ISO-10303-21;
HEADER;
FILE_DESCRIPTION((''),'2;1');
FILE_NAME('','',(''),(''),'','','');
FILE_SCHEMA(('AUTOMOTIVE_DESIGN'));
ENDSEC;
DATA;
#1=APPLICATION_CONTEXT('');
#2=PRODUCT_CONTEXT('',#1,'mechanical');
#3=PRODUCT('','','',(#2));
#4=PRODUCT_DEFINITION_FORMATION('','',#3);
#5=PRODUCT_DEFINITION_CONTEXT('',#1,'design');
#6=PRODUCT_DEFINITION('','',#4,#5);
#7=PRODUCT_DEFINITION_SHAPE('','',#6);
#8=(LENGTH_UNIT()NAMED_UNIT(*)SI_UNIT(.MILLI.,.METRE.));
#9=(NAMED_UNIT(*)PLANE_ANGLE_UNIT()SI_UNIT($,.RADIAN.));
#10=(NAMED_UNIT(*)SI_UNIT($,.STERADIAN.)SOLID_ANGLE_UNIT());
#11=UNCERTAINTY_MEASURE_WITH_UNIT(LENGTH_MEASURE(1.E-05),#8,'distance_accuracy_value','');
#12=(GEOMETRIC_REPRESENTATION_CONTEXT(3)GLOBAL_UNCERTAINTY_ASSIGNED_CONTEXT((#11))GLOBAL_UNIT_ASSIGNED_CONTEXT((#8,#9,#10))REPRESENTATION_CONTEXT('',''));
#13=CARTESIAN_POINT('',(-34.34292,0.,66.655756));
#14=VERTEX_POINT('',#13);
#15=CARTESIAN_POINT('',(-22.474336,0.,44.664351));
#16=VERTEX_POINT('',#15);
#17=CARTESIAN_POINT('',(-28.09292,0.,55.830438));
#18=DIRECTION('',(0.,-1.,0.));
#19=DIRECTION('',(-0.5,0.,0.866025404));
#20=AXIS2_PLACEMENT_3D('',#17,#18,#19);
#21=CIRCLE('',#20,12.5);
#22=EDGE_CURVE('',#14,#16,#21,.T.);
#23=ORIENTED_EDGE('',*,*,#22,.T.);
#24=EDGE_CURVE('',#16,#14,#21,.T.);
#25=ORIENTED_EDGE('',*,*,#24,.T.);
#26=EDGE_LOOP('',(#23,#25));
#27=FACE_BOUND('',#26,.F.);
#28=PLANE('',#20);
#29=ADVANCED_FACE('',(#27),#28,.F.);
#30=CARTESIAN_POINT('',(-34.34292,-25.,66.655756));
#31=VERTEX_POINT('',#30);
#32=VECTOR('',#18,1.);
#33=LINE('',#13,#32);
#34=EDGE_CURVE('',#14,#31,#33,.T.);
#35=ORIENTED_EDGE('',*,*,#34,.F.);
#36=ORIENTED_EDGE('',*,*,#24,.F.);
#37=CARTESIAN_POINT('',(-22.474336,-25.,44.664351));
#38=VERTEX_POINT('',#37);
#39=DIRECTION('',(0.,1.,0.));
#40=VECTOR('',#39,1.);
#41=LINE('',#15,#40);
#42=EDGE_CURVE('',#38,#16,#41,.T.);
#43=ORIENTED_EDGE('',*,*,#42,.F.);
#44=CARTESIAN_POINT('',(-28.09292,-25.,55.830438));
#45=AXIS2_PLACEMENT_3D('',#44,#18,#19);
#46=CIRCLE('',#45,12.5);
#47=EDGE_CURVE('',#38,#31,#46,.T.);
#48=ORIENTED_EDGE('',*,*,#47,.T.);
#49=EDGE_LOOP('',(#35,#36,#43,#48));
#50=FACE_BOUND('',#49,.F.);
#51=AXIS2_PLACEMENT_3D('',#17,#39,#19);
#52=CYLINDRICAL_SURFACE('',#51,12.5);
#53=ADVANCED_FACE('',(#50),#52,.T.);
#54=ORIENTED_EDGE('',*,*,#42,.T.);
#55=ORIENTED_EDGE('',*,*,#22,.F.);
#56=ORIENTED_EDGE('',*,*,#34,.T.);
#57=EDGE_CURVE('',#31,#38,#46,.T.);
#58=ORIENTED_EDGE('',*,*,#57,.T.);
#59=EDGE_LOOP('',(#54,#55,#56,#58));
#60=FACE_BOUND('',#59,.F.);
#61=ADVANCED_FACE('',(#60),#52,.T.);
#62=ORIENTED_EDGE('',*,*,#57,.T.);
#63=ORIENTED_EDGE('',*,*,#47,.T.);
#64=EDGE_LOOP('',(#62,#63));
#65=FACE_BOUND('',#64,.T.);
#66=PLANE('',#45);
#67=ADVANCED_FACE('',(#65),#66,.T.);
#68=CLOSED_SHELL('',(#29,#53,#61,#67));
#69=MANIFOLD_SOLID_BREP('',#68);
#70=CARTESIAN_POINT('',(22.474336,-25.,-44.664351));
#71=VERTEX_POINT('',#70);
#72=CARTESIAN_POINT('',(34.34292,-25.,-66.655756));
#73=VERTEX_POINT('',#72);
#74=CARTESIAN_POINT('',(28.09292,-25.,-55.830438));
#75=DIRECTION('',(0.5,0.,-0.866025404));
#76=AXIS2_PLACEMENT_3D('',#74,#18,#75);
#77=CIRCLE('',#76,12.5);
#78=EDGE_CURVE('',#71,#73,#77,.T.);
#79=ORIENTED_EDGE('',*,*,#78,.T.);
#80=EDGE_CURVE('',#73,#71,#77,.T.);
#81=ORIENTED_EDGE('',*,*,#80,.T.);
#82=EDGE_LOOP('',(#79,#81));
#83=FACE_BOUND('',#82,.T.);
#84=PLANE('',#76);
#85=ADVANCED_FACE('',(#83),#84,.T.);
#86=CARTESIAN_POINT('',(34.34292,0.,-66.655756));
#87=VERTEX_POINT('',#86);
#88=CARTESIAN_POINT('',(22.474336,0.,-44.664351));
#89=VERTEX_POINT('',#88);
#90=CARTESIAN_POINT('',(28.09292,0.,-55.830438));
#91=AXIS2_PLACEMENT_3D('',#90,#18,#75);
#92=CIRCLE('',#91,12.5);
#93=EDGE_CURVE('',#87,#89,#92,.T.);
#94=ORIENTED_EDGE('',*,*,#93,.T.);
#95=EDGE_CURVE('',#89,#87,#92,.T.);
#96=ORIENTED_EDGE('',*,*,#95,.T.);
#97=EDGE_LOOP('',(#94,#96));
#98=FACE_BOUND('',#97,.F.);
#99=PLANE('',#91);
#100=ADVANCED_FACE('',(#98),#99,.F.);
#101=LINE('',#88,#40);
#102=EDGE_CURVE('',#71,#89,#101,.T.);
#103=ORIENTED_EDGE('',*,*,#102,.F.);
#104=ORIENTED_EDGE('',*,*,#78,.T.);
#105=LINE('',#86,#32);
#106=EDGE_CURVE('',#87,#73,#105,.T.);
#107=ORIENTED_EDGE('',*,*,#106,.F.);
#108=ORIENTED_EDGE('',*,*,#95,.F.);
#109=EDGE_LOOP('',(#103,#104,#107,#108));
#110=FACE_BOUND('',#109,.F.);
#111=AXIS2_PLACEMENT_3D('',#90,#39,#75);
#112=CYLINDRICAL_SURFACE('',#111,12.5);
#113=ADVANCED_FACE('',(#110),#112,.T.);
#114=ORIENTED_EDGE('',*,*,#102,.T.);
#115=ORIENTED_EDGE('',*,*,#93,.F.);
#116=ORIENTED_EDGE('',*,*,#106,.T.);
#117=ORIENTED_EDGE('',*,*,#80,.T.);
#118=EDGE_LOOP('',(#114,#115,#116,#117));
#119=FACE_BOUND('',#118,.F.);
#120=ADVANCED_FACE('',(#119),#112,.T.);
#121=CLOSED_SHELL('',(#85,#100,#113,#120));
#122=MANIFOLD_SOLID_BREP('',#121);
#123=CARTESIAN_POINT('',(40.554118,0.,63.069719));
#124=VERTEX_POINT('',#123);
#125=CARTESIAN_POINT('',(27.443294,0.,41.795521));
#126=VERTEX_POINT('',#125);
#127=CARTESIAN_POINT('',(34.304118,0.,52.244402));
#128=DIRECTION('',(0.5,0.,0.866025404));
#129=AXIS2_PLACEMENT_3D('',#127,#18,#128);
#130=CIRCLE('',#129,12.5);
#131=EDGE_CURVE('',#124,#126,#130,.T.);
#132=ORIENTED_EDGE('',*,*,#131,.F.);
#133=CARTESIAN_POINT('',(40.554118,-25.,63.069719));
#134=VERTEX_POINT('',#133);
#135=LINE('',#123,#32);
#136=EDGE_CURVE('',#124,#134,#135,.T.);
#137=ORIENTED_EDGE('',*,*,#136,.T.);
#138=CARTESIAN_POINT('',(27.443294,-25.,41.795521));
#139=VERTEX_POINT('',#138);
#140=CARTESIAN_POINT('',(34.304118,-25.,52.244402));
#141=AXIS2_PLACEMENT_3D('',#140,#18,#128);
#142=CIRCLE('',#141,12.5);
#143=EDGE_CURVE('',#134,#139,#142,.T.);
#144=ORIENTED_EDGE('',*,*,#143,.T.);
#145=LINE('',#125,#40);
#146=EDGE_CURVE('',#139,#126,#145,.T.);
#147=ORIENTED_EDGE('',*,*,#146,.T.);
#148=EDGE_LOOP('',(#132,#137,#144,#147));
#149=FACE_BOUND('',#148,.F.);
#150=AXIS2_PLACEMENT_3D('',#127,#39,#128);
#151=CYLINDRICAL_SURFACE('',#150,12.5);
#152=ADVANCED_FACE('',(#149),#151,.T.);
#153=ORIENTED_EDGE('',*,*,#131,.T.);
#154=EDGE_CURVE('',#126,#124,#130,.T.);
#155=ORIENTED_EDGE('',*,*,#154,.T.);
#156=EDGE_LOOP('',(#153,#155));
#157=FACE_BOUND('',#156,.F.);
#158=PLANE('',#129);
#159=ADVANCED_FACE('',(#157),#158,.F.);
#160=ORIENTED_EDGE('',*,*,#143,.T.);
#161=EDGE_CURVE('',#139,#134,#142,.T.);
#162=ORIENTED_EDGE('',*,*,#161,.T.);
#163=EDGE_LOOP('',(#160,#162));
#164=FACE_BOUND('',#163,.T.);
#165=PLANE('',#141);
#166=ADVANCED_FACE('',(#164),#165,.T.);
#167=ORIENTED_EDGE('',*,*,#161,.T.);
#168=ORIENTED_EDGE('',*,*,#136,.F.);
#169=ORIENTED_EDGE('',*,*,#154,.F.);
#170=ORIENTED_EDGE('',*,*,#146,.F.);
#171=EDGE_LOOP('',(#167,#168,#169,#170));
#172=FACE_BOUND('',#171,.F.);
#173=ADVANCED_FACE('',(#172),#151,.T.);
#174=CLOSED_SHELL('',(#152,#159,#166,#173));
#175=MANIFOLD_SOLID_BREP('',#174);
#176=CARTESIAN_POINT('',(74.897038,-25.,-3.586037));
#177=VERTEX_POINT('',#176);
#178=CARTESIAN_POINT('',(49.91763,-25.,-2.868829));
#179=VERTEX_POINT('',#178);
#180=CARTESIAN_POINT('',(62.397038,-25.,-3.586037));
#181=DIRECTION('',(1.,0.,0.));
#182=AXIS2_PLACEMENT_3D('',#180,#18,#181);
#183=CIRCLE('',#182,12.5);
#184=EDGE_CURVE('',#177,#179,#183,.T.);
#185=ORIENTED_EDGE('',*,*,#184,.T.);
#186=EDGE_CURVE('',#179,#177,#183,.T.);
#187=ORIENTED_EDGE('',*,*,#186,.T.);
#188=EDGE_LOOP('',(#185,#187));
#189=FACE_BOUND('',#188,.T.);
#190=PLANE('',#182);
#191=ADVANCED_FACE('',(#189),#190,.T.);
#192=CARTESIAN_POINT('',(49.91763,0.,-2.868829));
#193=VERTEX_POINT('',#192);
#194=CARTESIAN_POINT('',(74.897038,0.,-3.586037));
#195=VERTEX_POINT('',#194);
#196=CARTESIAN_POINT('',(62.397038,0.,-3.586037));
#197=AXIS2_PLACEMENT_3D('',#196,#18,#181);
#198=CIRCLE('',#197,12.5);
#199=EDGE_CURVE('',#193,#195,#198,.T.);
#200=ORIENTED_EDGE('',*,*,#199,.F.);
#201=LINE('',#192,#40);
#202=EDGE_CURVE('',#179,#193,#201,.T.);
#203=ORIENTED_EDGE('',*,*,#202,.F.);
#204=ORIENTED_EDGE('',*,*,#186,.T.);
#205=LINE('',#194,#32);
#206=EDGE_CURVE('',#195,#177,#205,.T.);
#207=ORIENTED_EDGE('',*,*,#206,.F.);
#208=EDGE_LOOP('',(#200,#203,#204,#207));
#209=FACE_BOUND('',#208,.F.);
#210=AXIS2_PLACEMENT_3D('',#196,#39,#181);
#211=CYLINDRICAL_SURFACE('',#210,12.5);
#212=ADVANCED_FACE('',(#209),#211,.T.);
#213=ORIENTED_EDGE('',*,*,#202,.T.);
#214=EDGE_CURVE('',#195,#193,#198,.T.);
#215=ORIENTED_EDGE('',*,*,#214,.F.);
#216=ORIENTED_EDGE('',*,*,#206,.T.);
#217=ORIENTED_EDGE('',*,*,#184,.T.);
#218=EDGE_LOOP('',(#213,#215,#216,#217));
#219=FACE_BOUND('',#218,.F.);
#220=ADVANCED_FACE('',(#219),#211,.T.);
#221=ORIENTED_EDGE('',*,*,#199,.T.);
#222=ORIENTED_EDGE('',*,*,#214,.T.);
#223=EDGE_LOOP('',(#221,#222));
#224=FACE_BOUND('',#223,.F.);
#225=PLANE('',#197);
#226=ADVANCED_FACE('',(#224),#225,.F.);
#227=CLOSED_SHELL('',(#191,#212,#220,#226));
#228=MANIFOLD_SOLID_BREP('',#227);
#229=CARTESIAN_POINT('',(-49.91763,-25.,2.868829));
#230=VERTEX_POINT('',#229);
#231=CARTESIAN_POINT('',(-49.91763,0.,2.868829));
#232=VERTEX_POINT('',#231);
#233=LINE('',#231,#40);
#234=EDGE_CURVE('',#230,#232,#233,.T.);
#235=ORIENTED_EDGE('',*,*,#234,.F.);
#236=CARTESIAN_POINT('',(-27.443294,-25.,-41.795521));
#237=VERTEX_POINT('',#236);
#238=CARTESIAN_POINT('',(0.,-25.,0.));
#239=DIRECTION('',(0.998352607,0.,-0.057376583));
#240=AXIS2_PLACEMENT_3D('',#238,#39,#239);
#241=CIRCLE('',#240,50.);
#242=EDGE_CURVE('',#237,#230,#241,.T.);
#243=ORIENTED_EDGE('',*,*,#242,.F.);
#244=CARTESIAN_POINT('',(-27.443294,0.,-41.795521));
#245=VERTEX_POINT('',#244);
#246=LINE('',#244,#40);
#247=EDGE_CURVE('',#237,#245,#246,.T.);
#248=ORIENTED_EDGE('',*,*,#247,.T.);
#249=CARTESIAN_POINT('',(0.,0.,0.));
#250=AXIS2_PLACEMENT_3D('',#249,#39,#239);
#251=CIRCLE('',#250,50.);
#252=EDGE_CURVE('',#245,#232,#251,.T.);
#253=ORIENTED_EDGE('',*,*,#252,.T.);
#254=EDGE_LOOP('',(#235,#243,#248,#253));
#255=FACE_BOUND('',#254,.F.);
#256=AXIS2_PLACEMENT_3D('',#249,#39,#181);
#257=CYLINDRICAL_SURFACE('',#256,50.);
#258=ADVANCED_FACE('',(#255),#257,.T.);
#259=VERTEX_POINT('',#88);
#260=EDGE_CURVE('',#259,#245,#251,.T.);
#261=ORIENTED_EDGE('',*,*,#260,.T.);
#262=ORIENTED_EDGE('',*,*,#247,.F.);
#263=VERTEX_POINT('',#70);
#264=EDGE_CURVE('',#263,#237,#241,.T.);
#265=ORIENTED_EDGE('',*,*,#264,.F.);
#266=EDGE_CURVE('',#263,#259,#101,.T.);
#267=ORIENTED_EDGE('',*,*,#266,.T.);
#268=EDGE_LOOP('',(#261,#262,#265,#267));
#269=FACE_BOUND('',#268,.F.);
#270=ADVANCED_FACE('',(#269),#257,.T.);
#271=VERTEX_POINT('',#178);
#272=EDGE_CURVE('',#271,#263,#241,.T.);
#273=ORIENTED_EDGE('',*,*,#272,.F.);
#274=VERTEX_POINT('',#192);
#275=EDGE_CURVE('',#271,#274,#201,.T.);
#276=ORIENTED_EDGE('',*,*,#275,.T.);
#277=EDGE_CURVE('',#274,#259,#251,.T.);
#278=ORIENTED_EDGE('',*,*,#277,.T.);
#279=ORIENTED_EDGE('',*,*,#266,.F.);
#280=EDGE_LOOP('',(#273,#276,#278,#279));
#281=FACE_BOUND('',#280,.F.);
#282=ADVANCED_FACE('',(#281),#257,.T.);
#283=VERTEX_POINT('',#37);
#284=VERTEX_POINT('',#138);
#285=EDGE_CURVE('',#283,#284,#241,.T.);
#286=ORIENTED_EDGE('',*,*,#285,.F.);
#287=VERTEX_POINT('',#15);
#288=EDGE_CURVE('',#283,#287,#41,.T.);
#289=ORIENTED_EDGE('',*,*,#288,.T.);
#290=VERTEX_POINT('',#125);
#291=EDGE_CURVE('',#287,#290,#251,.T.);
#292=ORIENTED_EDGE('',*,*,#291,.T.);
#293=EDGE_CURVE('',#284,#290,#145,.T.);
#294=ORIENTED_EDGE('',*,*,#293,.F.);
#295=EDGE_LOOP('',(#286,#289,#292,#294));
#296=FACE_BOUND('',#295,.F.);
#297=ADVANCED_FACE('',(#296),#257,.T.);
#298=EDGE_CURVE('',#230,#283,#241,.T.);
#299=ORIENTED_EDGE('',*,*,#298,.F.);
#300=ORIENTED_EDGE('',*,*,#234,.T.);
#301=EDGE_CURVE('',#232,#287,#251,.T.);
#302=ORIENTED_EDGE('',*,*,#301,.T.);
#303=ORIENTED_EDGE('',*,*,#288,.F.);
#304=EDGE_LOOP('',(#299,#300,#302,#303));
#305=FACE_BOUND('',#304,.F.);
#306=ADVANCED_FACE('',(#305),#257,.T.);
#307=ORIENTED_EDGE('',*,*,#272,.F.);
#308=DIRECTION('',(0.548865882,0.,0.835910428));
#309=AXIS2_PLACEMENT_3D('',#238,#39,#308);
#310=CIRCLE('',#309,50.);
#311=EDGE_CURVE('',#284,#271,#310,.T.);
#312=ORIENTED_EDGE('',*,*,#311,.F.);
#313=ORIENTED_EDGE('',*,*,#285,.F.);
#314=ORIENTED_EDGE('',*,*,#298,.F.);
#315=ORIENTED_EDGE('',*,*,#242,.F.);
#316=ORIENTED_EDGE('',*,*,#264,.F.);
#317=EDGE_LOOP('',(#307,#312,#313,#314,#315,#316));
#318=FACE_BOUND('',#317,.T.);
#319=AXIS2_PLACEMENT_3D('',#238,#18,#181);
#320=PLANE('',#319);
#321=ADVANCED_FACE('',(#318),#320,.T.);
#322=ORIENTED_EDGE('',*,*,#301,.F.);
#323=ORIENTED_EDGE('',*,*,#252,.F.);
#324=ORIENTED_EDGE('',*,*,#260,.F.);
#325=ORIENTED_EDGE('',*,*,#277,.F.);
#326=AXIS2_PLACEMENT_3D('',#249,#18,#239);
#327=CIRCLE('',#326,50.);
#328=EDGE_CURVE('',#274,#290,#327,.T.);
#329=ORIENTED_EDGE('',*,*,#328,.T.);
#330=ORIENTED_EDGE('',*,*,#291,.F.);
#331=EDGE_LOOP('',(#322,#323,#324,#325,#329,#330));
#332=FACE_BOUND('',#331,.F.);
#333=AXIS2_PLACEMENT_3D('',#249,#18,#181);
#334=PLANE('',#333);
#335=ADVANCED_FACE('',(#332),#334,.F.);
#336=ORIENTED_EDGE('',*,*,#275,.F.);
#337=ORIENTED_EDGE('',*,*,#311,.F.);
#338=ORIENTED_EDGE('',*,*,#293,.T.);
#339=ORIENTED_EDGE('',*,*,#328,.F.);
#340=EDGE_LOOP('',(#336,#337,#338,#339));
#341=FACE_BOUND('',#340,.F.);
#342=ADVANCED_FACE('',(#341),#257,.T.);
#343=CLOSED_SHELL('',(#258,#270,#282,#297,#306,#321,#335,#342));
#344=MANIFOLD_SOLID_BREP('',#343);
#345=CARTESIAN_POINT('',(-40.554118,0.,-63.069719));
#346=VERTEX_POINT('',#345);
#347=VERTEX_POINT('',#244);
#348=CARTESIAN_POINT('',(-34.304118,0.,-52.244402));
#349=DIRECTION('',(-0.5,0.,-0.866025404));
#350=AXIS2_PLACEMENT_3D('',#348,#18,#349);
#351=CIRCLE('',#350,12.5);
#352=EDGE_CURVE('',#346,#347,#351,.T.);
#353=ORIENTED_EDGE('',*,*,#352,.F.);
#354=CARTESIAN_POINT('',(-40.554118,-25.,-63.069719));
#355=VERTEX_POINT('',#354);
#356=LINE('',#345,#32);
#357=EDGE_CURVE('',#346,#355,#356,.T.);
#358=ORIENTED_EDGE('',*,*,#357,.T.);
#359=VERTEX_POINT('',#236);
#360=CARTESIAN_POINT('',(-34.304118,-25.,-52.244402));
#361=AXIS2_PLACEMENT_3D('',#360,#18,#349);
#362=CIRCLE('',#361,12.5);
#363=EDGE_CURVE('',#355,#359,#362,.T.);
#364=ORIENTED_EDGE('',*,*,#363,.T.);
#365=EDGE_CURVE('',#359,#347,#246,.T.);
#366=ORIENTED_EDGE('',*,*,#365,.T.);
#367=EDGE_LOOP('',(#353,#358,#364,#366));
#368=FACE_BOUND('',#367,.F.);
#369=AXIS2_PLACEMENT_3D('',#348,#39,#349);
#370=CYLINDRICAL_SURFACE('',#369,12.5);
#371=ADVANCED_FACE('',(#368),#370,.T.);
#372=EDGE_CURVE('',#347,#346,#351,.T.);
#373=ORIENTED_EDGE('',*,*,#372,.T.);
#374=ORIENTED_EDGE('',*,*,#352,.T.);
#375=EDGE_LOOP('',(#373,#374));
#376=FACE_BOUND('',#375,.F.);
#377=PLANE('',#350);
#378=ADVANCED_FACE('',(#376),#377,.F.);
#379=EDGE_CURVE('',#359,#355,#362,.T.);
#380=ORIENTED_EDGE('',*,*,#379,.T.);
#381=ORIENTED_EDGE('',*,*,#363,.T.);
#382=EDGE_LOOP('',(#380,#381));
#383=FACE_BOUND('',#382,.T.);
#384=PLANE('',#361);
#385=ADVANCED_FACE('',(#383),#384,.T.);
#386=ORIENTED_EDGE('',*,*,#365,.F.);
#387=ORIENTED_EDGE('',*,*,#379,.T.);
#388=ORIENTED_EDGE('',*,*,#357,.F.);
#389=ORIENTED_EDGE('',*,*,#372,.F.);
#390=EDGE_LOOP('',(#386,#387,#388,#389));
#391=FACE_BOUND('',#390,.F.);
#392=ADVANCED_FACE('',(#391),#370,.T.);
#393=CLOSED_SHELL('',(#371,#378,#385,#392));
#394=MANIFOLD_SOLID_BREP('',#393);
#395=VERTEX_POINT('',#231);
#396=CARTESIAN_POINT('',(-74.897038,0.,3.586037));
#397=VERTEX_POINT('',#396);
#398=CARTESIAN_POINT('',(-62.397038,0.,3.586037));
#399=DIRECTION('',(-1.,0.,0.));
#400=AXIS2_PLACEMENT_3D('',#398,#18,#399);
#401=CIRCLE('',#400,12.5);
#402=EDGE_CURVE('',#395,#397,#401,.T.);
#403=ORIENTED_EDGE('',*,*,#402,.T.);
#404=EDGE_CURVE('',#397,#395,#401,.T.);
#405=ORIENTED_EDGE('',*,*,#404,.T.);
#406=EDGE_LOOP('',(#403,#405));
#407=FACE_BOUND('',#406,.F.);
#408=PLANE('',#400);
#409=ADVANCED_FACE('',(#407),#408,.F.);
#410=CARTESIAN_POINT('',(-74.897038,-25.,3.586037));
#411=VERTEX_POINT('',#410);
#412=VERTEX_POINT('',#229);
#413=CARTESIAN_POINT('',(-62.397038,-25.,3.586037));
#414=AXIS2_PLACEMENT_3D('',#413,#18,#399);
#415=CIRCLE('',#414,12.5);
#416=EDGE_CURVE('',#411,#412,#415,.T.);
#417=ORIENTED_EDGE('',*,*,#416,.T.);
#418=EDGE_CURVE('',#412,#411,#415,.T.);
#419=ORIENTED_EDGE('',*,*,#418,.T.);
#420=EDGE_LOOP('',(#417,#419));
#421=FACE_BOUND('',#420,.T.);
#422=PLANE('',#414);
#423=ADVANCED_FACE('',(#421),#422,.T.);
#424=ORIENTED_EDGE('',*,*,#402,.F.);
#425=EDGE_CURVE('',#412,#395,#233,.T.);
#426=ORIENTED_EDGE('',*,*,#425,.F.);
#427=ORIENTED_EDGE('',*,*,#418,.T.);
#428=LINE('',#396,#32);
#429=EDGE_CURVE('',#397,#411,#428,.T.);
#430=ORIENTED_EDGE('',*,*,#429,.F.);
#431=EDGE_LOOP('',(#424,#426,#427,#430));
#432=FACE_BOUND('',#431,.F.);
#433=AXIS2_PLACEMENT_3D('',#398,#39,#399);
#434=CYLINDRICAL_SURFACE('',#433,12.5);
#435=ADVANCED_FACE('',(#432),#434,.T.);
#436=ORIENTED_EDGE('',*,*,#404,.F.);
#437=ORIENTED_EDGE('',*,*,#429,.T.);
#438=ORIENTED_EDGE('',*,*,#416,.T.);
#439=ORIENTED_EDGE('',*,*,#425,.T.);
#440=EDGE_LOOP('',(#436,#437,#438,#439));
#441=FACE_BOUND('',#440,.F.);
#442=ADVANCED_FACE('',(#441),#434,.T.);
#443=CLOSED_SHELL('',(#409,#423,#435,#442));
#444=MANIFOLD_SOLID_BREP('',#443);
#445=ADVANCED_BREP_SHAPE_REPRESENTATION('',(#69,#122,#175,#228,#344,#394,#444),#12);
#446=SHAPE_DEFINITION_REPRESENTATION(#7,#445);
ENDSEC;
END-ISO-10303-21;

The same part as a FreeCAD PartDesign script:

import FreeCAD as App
import Part
import Sketcher
Q = App.Units.Quantity

doc = App.newDocument("Part")
params = doc.addObject("Spreadsheet::Sheet", "Params")
for row, (alias, value) in enumerate([
    ("sketch1_diameter", "100 mm"),
    ("pad1_length", "25 mm"),
    ("sketch2_diameter", "25 mm"),
    ("pad2_length", "25 mm"),
], start=1):
    params.set(f"A{row}", alias)
    params.set(f"B{row}", "=" + value)
    params.setAlias(f"B{row}", alias)

body = doc.addObject("PartDesign::Body", "Body")
body.AllowCompound = True

# Sketch on XZ plane
sketch1 = body.newObject("Sketcher::SketchObject", "Sketch")
sketch1.AttachmentSupport = (doc.getObject("XZ_Plane"), [""])
sketch1.MapMode = "FlatFace"
sketch1.addGeometry(Part.Circle(App.Vector(0, 0, 0), App.Vector(0, 0, 1), 50), False)
sketch1.addConstraint(Sketcher.Constraint("Coincident", 0, 3, -1, 1))
sketch1.addConstraint(Sketcher.Constraint("Diameter", 0, Q("100 mm")))
sketch1.setExpression("Constraints[1]", "Params.sketch1_diameter")
pad1 = body.newObject("PartDesign::Pad", "Pad")
pad1.Profile = sketch1
pad1.setExpression("Length", "Params.pad1_length")

# Sketch on XZ plane
sketch2 = body.newObject("Sketcher::SketchObject", "Sketch001")
sketch2.AttachmentSupport = (doc.getObject("XZ_Plane"), [""])
sketch2.MapMode = "FlatFace"
sketch2.addGeometry(Part.Circle(App.Vector(62, -4, 0), App.Vector(0, 0, 1), 12), False)
sketch2.addConstraint(Sketcher.Constraint("Diameter", 0, Q("25 mm")))
sketch2.addConstraint(Sketcher.Constraint("DistanceX", -1, 1, 0, 3, Q("62.397038 mm")))
sketch2.addConstraint(Sketcher.Constraint("DistanceY", 0, 3, -1, 1, Q("3.586037 mm")))
sketch2.setExpression("Constraints[0]", "Params.sketch2_diameter")
pad2 = body.newObject("PartDesign::Pad", "Pad001")
pad2.Profile = sketch2
pad2.setExpression("Length", "Params.pad2_length")
body2 = doc.addObject("PartDesign::Body", "Body001")
body2.AllowCompound = True
doc.recompute()

body2.BaseFeature = body
doc.recompute()

body3 = doc.addObject("PartDesign::Body", "Body002")
body3.BaseFeature = body
body3.Placement = App.Placement(App.Vector(0, 0, 0), App.Rotation(App.Vector(0, -1, 0), 60))
boolean = body2.newObject("PartDesign::Boolean", "Boolean")
boolean.Type = "Fuse"
boolean.addObjects([body3])
doc.recompute()

body4 = doc.addObject("PartDesign::Body", "Body003")
body4.BaseFeature = body
body4.Placement = App.Placement(App.Vector(0, 0, 0), App.Rotation(App.Vector(0, -1, 0), 120))
boolean2 = body2.newObject("PartDesign::Boolean", "Boolean001")
boolean2.Type = "Fuse"
boolean2.addObjects([body4])
doc.recompute()

body5 = doc.addObject("PartDesign::Body", "Body004")
body5.BaseFeature = body
body5.Placement = App.Placement(App.Vector(0, 0, 0), App.Rotation(App.Vector(0, -1, 0), 180))
boolean3 = body2.newObject("PartDesign::Boolean", "Boolean002")
boolean3.Type = "Fuse"
boolean3.addObjects([body5])
doc.recompute()

body6 = doc.addObject("PartDesign::Body", "Body005")
body6.BaseFeature = body
body6.Placement = App.Placement(App.Vector(0, 0, 0), App.Rotation(App.Vector(0, -1, 0), 240))
boolean4 = body2.newObject("PartDesign::Boolean", "Boolean003")
boolean4.Type = "Fuse"
boolean4.addObjects([body6])
doc.recompute()

body.Placement = App.Placement(App.Vector(0, 0, 0), App.Rotation(App.Vector(0, -1, 0), 300))
boolean5 = body2.newObject("PartDesign::Boolean", "Boolean004")
boolean5.Type = "Fuse"
boolean5.addObjects([body])

doc.recompute()
